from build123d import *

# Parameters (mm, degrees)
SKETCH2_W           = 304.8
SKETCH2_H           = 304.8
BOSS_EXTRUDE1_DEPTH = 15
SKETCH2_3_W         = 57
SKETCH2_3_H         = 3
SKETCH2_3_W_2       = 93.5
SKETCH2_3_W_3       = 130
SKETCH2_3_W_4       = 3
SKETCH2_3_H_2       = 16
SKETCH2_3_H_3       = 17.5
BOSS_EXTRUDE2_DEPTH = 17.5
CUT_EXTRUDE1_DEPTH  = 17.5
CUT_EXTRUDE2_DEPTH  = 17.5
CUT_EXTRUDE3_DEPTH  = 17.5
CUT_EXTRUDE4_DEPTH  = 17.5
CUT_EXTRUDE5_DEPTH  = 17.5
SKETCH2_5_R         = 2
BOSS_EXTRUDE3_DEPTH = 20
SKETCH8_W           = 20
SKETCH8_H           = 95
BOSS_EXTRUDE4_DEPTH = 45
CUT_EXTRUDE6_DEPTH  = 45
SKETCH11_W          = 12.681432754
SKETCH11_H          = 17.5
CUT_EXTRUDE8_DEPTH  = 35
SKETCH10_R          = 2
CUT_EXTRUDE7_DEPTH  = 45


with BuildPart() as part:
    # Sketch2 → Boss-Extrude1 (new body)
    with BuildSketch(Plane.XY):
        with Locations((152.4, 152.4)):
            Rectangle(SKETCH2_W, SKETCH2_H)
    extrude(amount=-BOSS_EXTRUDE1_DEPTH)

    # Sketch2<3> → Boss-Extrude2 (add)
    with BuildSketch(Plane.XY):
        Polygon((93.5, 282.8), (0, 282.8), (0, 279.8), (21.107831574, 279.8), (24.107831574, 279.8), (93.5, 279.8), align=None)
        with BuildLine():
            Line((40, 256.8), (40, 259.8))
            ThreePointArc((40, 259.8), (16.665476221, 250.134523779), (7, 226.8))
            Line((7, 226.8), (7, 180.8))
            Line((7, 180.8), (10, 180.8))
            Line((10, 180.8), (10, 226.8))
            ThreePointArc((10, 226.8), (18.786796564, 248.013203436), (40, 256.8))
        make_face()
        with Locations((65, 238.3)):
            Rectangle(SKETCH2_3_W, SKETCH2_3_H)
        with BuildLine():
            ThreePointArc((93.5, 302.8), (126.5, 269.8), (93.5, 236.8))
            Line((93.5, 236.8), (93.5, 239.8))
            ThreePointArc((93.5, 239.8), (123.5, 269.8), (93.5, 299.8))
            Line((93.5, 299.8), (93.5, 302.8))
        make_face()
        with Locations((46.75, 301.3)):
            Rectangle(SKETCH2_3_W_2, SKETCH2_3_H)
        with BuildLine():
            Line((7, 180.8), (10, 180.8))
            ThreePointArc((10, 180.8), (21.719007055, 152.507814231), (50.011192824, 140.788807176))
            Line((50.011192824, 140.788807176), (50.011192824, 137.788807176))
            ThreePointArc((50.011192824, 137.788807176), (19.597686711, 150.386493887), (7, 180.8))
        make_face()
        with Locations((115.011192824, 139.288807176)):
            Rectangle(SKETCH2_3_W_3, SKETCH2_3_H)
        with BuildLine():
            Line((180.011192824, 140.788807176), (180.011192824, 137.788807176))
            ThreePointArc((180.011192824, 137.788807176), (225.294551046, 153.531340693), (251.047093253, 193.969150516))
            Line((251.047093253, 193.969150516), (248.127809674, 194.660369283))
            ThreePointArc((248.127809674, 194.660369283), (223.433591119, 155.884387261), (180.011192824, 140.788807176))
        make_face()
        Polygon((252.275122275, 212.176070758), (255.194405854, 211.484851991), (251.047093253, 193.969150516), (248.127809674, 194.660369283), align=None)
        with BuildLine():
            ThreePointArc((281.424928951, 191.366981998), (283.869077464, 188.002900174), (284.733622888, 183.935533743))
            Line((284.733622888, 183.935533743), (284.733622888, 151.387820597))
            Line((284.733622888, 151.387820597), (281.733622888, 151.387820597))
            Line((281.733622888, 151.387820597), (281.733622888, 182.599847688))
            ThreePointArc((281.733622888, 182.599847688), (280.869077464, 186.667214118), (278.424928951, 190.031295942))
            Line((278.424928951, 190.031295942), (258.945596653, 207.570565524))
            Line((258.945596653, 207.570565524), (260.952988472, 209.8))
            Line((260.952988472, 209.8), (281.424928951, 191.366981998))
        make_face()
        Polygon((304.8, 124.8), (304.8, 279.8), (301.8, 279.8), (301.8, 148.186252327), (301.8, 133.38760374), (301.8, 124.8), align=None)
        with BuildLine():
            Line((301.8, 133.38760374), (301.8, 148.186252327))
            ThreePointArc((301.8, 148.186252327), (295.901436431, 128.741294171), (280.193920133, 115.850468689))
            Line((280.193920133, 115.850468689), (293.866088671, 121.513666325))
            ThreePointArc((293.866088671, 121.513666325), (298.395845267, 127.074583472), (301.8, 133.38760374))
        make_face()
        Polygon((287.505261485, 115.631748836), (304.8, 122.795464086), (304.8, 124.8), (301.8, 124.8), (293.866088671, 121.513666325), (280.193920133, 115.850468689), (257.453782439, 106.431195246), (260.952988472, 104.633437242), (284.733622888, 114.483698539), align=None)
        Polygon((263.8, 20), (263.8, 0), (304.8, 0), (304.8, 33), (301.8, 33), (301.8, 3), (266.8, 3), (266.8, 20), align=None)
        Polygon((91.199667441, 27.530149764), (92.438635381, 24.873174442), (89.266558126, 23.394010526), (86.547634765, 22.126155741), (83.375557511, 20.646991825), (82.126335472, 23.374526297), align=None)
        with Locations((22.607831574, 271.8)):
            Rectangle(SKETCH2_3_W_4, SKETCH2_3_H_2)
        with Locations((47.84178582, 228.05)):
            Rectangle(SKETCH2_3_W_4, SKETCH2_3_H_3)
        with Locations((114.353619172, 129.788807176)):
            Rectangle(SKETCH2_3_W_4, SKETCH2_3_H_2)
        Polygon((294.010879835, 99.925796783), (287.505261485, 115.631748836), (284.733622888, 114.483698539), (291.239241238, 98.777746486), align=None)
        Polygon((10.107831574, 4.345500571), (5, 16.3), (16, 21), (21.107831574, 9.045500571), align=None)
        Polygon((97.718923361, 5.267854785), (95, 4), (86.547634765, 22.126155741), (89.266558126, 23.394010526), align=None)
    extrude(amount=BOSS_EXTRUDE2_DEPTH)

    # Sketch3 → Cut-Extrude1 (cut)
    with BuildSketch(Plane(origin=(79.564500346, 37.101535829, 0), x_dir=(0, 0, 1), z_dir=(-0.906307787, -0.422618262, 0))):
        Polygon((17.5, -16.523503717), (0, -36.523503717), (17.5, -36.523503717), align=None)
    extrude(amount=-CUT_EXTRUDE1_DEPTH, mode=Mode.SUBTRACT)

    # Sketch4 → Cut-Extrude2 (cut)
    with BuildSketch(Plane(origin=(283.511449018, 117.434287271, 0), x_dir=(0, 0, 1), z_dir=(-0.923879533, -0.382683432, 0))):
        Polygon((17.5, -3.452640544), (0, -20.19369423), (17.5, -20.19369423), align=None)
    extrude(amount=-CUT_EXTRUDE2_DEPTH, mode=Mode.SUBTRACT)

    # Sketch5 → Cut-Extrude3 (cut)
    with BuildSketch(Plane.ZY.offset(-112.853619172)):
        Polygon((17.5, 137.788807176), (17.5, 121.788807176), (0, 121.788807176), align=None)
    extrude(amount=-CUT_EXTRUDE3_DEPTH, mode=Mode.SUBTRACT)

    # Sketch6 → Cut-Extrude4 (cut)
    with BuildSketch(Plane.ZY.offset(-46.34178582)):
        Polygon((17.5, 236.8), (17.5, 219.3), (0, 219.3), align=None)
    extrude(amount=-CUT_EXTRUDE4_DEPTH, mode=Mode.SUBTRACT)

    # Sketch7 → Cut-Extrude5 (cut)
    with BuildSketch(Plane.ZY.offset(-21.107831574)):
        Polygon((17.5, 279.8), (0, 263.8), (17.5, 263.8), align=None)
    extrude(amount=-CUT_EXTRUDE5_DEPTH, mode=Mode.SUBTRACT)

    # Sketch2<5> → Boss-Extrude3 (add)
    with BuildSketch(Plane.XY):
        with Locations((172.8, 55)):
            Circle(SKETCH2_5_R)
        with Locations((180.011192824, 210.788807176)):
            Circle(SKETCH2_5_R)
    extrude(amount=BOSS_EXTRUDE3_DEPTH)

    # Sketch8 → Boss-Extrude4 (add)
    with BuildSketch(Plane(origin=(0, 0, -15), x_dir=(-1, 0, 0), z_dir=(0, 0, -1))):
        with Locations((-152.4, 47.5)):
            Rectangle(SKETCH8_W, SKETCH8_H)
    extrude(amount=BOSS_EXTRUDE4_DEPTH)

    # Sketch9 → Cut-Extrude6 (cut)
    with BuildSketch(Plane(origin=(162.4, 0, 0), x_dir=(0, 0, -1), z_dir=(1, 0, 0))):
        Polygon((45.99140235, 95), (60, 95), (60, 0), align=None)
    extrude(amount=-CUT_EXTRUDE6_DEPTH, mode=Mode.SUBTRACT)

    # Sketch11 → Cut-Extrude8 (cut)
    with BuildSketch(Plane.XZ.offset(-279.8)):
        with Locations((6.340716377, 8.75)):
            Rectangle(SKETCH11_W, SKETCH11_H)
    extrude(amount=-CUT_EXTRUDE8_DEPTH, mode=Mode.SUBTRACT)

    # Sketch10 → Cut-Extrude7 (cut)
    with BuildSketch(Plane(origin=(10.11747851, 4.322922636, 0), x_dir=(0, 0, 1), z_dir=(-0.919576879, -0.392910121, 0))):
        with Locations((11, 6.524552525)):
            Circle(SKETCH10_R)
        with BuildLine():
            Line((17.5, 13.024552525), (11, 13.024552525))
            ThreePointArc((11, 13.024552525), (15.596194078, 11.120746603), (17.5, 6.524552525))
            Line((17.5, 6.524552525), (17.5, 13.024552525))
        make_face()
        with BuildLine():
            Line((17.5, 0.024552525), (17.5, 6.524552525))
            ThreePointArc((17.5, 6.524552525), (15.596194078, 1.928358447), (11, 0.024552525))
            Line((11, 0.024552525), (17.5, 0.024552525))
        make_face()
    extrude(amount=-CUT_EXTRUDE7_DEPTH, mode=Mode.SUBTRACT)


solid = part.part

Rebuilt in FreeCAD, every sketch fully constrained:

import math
import FreeCAD as App
import Part
import Sketcher
from FreeCAD import Vector
Q = App.Units.Quantity

doc = App.newDocument("Part")
body = doc.addObject("PartDesign::Body", "Body")

# Sketch on XY plane
sketch1 = body.newObject("Sketcher::SketchObject", "Sketch")
sketch1.AttachmentSupport = (doc.getObject("XY_Plane"), [""])
sketch1.MapMode = "FlatFace"
sketch1.addGeometry(Part.LineSegment(Vector(0, 305, 0), Vector(0, 0, 0)), False)
sketch1.addGeometry(Part.LineSegment(Vector(0, 0, 0), Vector(305, 0, 0)), False)
sketch1.addGeometry(Part.LineSegment(Vector(305, 0, 0), Vector(305, 305, 0)), False)
sketch1.addGeometry(Part.LineSegment(Vector(305, 305, 0), Vector(0, 305, 0)), False)
sketch1.addConstraint(Sketcher.Constraint("Coincident", 0, 2, 1, 1))
sketch1.addConstraint(Sketcher.Constraint("Coincident", 1, 2, 2, 1))
sketch1.addConstraint(Sketcher.Constraint("Coincident", 2, 2, 3, 1))
sketch1.addConstraint(Sketcher.Constraint("Coincident", 3, 2, 0, 1))
sketch1.addConstraint(Sketcher.Constraint("Vertical", 0))
sketch1.addConstraint(Sketcher.Constraint("Horizontal", 1))
sketch1.addConstraint(Sketcher.Constraint("Vertical", 2))
sketch1.addConstraint(Sketcher.Constraint("Horizontal", 3))
sketch1.addConstraint(Sketcher.Constraint("Coincident", 0, 2, -1, 1))
sketch1.addConstraint(Sketcher.Constraint("Equal", 3, 0))
sketch1.addConstraint(Sketcher.Constraint("DistanceX", 1, 1, 1, 2, 304.8))
pad1 = body.newObject("PartDesign::Pad", "Pad")
pad1.Profile = sketch1
pad1.Length = 15
pad1.Reversed = True

# Sketch on XY plane
sketch2 = body.newObject("Sketcher::SketchObject", "Sketch001")
sketch2.AttachmentSupport = (doc.getObject("XY_Plane"), [""])
sketch2.MapMode = "FlatFace"
sketch2.addGeometry(Part.LineSegment(Vector(93.5, 282.8, 0), Vector(0, 282.8, 0)), False)
sketch2.addGeometry(Part.LineSegment(Vector(0, 282.8, 0), Vector(0, 279.8, 0)), False)
sketch2.addGeometry(Part.LineSegment(Vector(0, 279.8, 0), Vector(21.1, 279.8, 0)), False)
sketch2.addGeometry(Part.LineSegment(Vector(21.1, 279.8, 0), Vector(21.1, 263.8, 0)), False)
sketch2.addGeometry(Part.LineSegment(Vector(21.1, 263.8, 0), Vector(24.1, 263.8, 0)), False)
sketch2.addGeometry(Part.LineSegment(Vector(24.1, 263.8, 0), Vector(24.1, 279.8, 0)), False)
sketch2.addGeometry(Part.LineSegment(Vector(24.1, 279.8, 0), Vector(93.5, 279.8, 0)), False)
sketch2.addGeometry(Part.LineSegment(Vector(93.5, 279.8, 0), Vector(93.5, 282.8, 0)), False)
sketch2.addGeometry(Part.LineSegment(Vector(40, 256.8, 0), Vector(40, 259.8, 0)), False)
sketch2.addGeometry(Part.ArcOfCircle(Part.Circle(Vector(40, 226.8, 0), Vector(0, 0, 1), 33), math.radians(90), math.radians(180)), False)
sketch2.addGeometry(Part.LineSegment(Vector(7, 226.8, 0), Vector(7, 180.8, 0)), False)
sketch2.addGeometry(Part.ArcOfCircle(Part.Circle(Vector(50, 180.8, 0), Vector(0, 0, 1), 43), math.radians(180), math.radians(270)), False)
sketch2.addGeometry(Part.LineSegment(Vector(50, 137.8, 0), Vector(112.9, 137.8, 0)), False)
sketch2.addGeometry(Part.LineSegment(Vector(112.9, 137.8, 0), Vector(112.9, 121.8, 0)), False)
sketch2.addGeometry(Part.LineSegment(Vector(112.9, 121.8, 0), Vector(115.9, 121.8, 0)), False)
sketch2.addGeometry(Part.LineSegment(Vector(115.9, 121.8, 0), Vector(115.9, 137.8, 0)), False)
sketch2.addGeometry(Part.LineSegment(Vector(115.9, 137.8, 0), Vector(180, 137.8, 0)), False)
sketch2.addGeometry(Part.ArcOfCircle(Part.Circle(Vector(180, 210.8, 0), Vector(0, 0, 1), 73), math.radians(-90), math.radians(-13)), False)
sketch2.addGeometry(Part.LineSegment(Vector(251, 194, 0), Vector(255.2, 211.5, 0)), False)
sketch2.addGeometry(Part.LineSegment(Vector(255.2, 211.5, 0), Vector(252.3, 212.2, 0)), False)
sketch2.addGeometry(Part.LineSegment(Vector(252.3, 212.2, 0), Vector(248.1, 194.7, 0)), False)
sketch2.addGeometry(Part.ArcOfCircle(Part.Circle(Vector(180, 210.8, 0), Vector(0, 0, 1), 70), math.radians(-90), math.radians(-13)), False)
sketch2.addGeometry(Part.LineSegment(Vector(180, 140.8, 0), Vector(50, 140.8, 0)), False)
sketch2.addGeometry(Part.ArcOfCircle(Part.Circle(Vector(50, 180.8, 0), Vector(0, 0, 1), 40), math.radians(-180), math.radians(-90)), False)
sketch2.addGeometry(Part.LineSegment(Vector(10, 180.8, 0), Vector(10, 226.8, 0)), False)
sketch2.addGeometry(Part.ArcOfCircle(Part.Circle(Vector(40, 226.8, 0), Vector(0, 0, 1), 30), math.radians(90), math.radians(180)), False)
sketch2.addGeometry(Part.LineSegment(Vector(36.5, 239.8, 0), Vector(36.5, 236.8, 0)), False)
sketch2.addGeometry(Part.LineSegment(Vector(36.5, 236.8, 0), Vector(46.3, 236.8, 0)), False)
sketch2.addGeometry(Part.LineSegment(Vector(46.3, 236.8, 0), Vector(46.3, 219.3, 0)), False)
sketch2.addGeometry(Part.LineSegment(Vector(46.3, 219.3, 0), Vector(49.3, 219.3, 0)), False)
sketch2.addGeometry(Part.LineSegment(Vector(49.3, 219.3, 0), Vector(49.3, 236.8, 0)), False)
sketch2.addGeometry(Part.LineSegment(Vector(49.3, 236.8, 0), Vector(93.5, 236.8, 0)), False)
sketch2.addGeometry(Part.ArcOfCircle(Part.Circle(Vector(93.5, 269.8, 0), Vector(0, 0, 1), 33), math.radians(-90), math.radians(90)), False)
sketch2.addGeometry(Part.LineSegment(Vector(93.5, 302.8, 0), Vector(0, 302.8, 0)), False)
sketch2.addGeometry(Part.LineSegment(Vector(0, 302.8, 0), Vector(0, 299.8, 0)), False)
sketch2.addGeometry(Part.LineSegment(Vector(0, 299.8, 0), Vector(93.5, 299.8, 0)), False)
sketch2.addGeometry(Part.ArcOfCircle(Part.Circle(Vector(93.5, 269.8, 0), Vector(0, 0, 1), 30), math.radians(-90), math.radians(90)), False)
sketch2.addGeometry(Part.LineSegment(Vector(93.5, 239.8, 0), Vector(36.5, 239.8, 0)), False)
sketch2.addGeometry(Part.ArcOfCircle(Part.Circle(Vector(274.7, 183.9, 0), Vector(0, 0, 1), 10), math.radians(0), math.radians(48)), False)
sketch2.addGeometry(Part.LineSegment(Vector(281.4, 191.4, 0), Vector(261, 209.8, 0)), False)
sketch2.addGeometry(Part.LineSegment(Vector(261, 209.8, 0), Vector(258.9, 207.6, 0)), False)
sketch2.addGeometry(Part.LineSegment(Vector(258.9, 207.6, 0), Vector(278.4, 190, 0)), False)
sketch2.addGeometry(Part.ArcOfCircle(Part.Circle(Vector(271.7, 182.6, 0), Vector(0, 0, 1), 10), math.radians(0), math.radians(48)), False)
sketch2.addGeometry(Part.LineSegment(Vector(281.7, 182.6, 0), Vector(281.7, 151.4, 0)), False)
sketch2.addGeometry(Part.LineSegment(Vector(281.7, 151.4, 0), Vector(284.7, 151.4, 0)), False)
sketch2.addGeometry(Part.LineSegment(Vector(284.7, 151.4, 0), Vector(284.7, 183.9, 0)), False)
sketch2.addGeometry(Part.LineSegment(Vector(304.8, 279.8, 0), Vector(301.8, 279.8, 0)), False)
sketch2.addGeometry(Part.LineSegment(Vector(301.8, 279.8, 0), Vector(301.8, 148.2, 0)), False)
sketch2.addGeometry(Part.ArcOfCircle(Part.Circle(Vector(266.8, 148.2, 0), Vector(0, 0, 1), 35), math.radians(-68), math.radians(0)), False)
sketch2.addGeometry(Part.LineSegment(Vector(280.2, 115.9, 0), Vector(257.5, 106.4, 0)), False)
sketch2.addGeometry(Part.LineSegment(Vector(257.5, 106.4, 0), Vector(261, 104.6, 0)), False)
sketch2.addGeometry(Part.LineSegment(Vector(261, 104.6, 0), Vector(284.7, 114.5, 0)), False)
sketch2.addGeometry(Part.LineSegment(Vector(284.7, 114.5, 0), Vector(291.2, 98.8, 0)), False)
sketch2.addGeometry(Part.LineSegment(Vector(291.2, 98.8, 0), Vector(294, 99.9, 0)), False)
sketch2.addGeometry(Part.LineSegment(Vector(294, 99.9, 0), Vector(287.5, 115.6, 0)), False)
sketch2.addGeometry(Part.LineSegment(Vector(287.5, 115.6, 0), Vector(304.8, 122.8, 0)), False)
sketch2.addGeometry(Part.LineSegment(Vector(304.8, 122.8, 0), Vector(304.8, 279.8, 0)), False)
sketch2.addGeometry(Part.ArcOfCircle(Part.Circle(Vector(266.8, 148.2, 0), Vector(0, 0, 1), 38), math.radians(-45), math.radians(-23)), False)
sketch2.addGeometry(Part.LineSegment(Vector(301.8, 133.4, 0), Vector(301.8, 124.8, 0)), False)
sketch2.addGeometry(Part.LineSegment(Vector(301.8, 124.8, 0), Vector(293.9, 121.5, 0)), False)
sketch2.addGeometry(Part.LineSegment(Vector(263.8, 20, 0), Vector(263.8, 0, 0)), False)
sketch2.addGeometry(Part.LineSegment(Vector(263.8, 0, 0), Vector(304.8, 0, 0)), False)
sketch2.addGeometry(Part.LineSegment(Vector(304.8, 0, 0), Vector(304.8, 33, 0)), False)
sketch2.addGeometry(Part.LineSegment(Vector(304.8, 33, 0), Vector(301.8, 33, 0)), False)
sketch2.addGeometry(Part.LineSegment(Vector(301.8, 33, 0), Vector(301.8, 3, 0)), False)
sketch2.addGeometry(Part.LineSegment(Vector(301.8, 3, 0), Vector(266.8, 3, 0)), False)
sketch2.addGeometry(Part.LineSegment(Vector(266.8, 3, 0), Vector(266.8, 20, 0)), False)
sketch2.addGeometry(Part.LineSegment(Vector(266.8, 20, 0), Vector(263.8, 20, 0)), False)
sketch2.addGeometry(Part.LineSegment(Vector(92.4, 24.9, 0), Vector(91.2, 27.5, 0)), False)
sketch2.addGeometry(Part.LineSegment(Vector(91.2, 27.5, 0), Vector(82.1, 23.4, 0)), False)
sketch2.addGeometry(Part.LineSegment(Vector(82.1, 23.4, 0), Vector(83.4, 20.6, 0)), False)
sketch2.addGeometry(Part.LineSegment(Vector(83.4, 20.6, 0), Vector(86.5, 22.1, 0)), False)
sketch2.addGeometry(Part.LineSegment(Vector(86.5, 22.1, 0), Vector(95, 4, 0)), False)
sketch2.addGeometry(Part.LineSegment(Vector(95, 4, 0), Vector(97.7, 5.3, 0)), False)
sketch2.addGeometry(Part.LineSegment(Vector(97.7, 5.3, 0), Vector(89.3, 23.4, 0)), False)
sketch2.addGeometry(Part.LineSegment(Vector(89.3, 23.4, 0), Vector(92.4, 24.9, 0)), False)
sketch2.addGeometry(Part.LineSegment(Vector(5, 16.3, 0), Vector(10.1, 4.3, 0)), False)
sketch2.addGeometry(Part.LineSegment(Vector(10.1, 4.3, 0), Vector(21.1, 9, 0)), False)
sketch2.addGeometry(Part.LineSegment(Vector(21.1, 9, 0), Vector(16, 21, 0)), False)
sketch2.addGeometry(Part.LineSegment(Vector(16, 21, 0), Vector(5, 16.3, 0)), False)
sketch2.addConstraint(Sketcher.Constraint("Coincident", 0, 2, 1, 1))
sketch2.addConstraint(Sketcher.Constraint("Coincident", 1, 2, 2, 1))
sketch2.addConstraint(Sketcher.Constraint("Coincident", 2, 2, 3, 1))
sketch2.addConstraint(Sketcher.Constraint("Coincident", 3, 2, 4, 1))
sketch2.addConstraint(Sketcher.Constraint("Coincident", 4, 2, 5, 1))
sketch2.addConstraint(Sketcher.Constraint("Coincident", 5, 2, 6, 1))
sketch2.addConstraint(Sketcher.Constraint("Coincident", 6, 2, 7, 1))
sketch2.addConstraint(Sketcher.Constraint("Coincident", 7, 2, 0, 1))
sketch2.addConstraint(Sketcher.Constraint("Coincident", 8, 2, 9, 1))
sketch2.addConstraint(Sketcher.Constraint("Tangent", 9, 2, 10, 1))
sketch2.addConstraint(Sketcher.Constraint("Tangent", 10, 2, 11, 1))
sketch2.addConstraint(Sketcher.Constraint("Tangent", 11, 2, 12, 1))
sketch2.addConstraint(Sketcher.Constraint("Coincident", 12, 2, 13, 1))
sketch2.addConstraint(Sketcher.Constraint("Coincident", 13, 2, 14, 1))
sketch2.addConstraint(Sketcher.Constraint("Coincident", 14, 2, 15, 1))
sketch2.addConstraint(Sketcher.Constraint("Coincident", 15, 2, 16, 1))
sketch2.addConstraint(Sketcher.Constraint("Tangent", 16, 2, 17, 1))
sketch2.addConstraint(Sketcher.Constraint("Tangent", 17, 2, 18, 1))
sketch2.addConstraint(Sketcher.Constraint("Coincident", 18, 2, 19, 1))
sketch2.addConstraint(Sketcher.Constraint("Coincident", 19, 2, 20, 1))
sketch2.addConstraint(Sketcher.Constraint("Tangent", 20, 2, 21, 2))
sketch2.addConstraint(Sketcher.Constraint("Tangent", 21, 1, 22, 1))
sketch2.addConstraint(Sketcher.Constraint("Tangent", 22, 2, 23, 2))
sketch2.addConstraint(Sketcher.Constraint("Tangent", 23, 1, 24, 1))
sketch2.addConstraint(Sketcher.Constraint("Tangent", 24, 2, 25, 2))
sketch2.addConstraint(Sketcher.Constraint("Coincident", 25, 1, 8, 1))
sketch2.addConstraint(Sketcher.Constraint("Coincident", 26, 2, 27, 1))
sketch2.addConstraint(Sketcher.Constraint("Coincident", 27, 2, 28, 1))
sketch2.addConstraint(Sketcher.Constraint("Coincident", 28, 2, 29, 1))
sketch2.addConstraint(Sketcher.Constraint("Coincident", 29, 2, 30, 1))
sketch2.addConstraint(Sketcher.Constraint("Coincident", 30, 2, 31, 1))
sketch2.addConstraint(Sketcher.Constraint("Tangent", 31, 2, 32, 1))
sketch2.addConstraint(Sketcher.Constraint("Tangent", 32, 2, 33, 1))
sketch2.addConstraint(Sketcher.Constraint("Coincident", 33, 2, 34, 1))
sketch2.addConstraint(Sketcher.Constraint("Coincident", 34, 2, 35, 1))
sketch2.addConstraint(Sketcher.Constraint("Tangent", 35, 2, 36, 2))
sketch2.addConstraint(Sketcher.Constraint("Tangent", 36, 1, 37, 1))
sketch2.addConstraint(Sketcher.Constraint("Coincident", 37, 2, 26, 1))
sketch2.addConstraint(Sketcher.Constraint("Tangent", 38, 2, 39, 1))
sketch2.addConstraint(Sketcher.Constraint("Coincident", 39, 2, 40, 1))
sketch2.addConstraint(Sketcher.Constraint("Coincident", 40, 2, 41, 1))
sketch2.addConstraint(Sketcher.Constraint("Tangent", 41, 2, 42, 2))
sketch2.addConstraint(Sketcher.Constraint("Tangent", 42, 1, 43, 1))
sketch2.addConstraint(Sketcher.Constraint("Coincident", 43, 2, 44, 1))
sketch2.addConstraint(Sketcher.Constraint("Coincident", 44, 2, 45, 1))
sketch2.addConstraint(Sketcher.Constraint("Tangent", 45, 2, 38, 1))
sketch2.addConstraint(Sketcher.Constraint("Coincident", 46, 2, 47, 1))
sketch2.addConstraint(Sketcher.Constraint("Tangent", 47, 2, 48, 2))
sketch2.addConstraint(Sketcher.Constraint("Tangent", 48, 1, 49, 1))
sketch2.addConstraint(Sketcher.Constraint("Coincident", 49, 2, 50, 1))
sketch2.addConstraint(Sketcher.Constraint("Coincident", 50, 2, 51, 1))
sketch2.addConstraint(Sketcher.Constraint("Coincident", 51, 2, 52, 1))
sketch2.addConstraint(Sketcher.Constraint("Coincident", 52, 2, 53, 1))
sketch2.addConstraint(Sketcher.Constraint("Coincident", 53, 2, 54, 1))
sketch2.addConstraint(Sketcher.Constraint("Coincident", 54, 2, 55, 1))
sketch2.addConstraint(Sketcher.Constraint("Coincident", 55, 2, 56, 1))
sketch2.addConstraint(Sketcher.Constraint("Coincident", 56, 2, 46, 1))
sketch2.addConstraint(Sketcher.Constraint("Coincident", 57, 2, 58, 1))
sketch2.addConstraint(Sketcher.Constraint("Coincident", 58, 2, 59, 1))
sketch2.addConstraint(Sketcher.Constraint("Coincident", 59, 2, 57, 1))
sketch2.addConstraint(Sketcher.Constraint("Coincident", 60, 2, 61, 1))
sketch2.addConstraint(Sketcher.Constraint("Coincident", 61, 2, 62, 1))
sketch2.addConstraint(Sketcher.Constraint("Coincident", 62, 2, 63, 1))
sketch2.addConstraint(Sketcher.Constraint("Coincident", 63, 2, 64, 1))
sketch2.addConstraint(Sketcher.Constraint("Coincident", 64, 2, 65, 1))
sketch2.addConstraint(Sketcher.Constraint("Coincident", 65, 2, 66, 1))
sketch2.addConstraint(Sketcher.Constraint("Coincident", 66, 2, 67, 1))
sketch2.addConstraint(Sketcher.Constraint("Coincident", 67, 2, 60, 1))
sketch2.addConstraint(Sketcher.Constraint("Coincident", 68, 2, 69, 1))
sketch2.addConstraint(Sketcher.Constraint("Coincident", 69, 2, 70, 1))
sketch2.addConstraint(Sketcher.Constraint("Coincident", 70, 2, 71, 1))
sketch2.addConstraint(Sketcher.Constraint("Coincident", 71, 2, 72, 1))
sketch2.addConstraint(Sketcher.Constraint("Coincident", 72, 2, 73, 1))
sketch2.addConstraint(Sketcher.Constraint("Coincident", 73, 2, 74, 1))
sketch2.addConstraint(Sketcher.Constraint("Coincident", 74, 2, 75, 1))
sketch2.addConstraint(Sketcher.Constraint("Coincident", 75, 2, 68, 1))
sketch2.addConstraint(Sketcher.Constraint("Coincident", 76, 2, 77, 1))
sketch2.addConstraint(Sketcher.Constraint("Coincident", 77, 2, 78, 1))
sketch2.addConstraint(Sketcher.Constraint("Coincident", 78, 2, 79, 1))
sketch2.addConstraint(Sketcher.Constraint("Coincident", 79, 2, 76, 1))
sketch2.addConstraint(Sketcher.Constraint("Horizontal", 0))
sketch2.addConstraint(Sketcher.Constraint("Vertical", 1))
sketch2.addConstraint(Sketcher.Constraint("Horizontal", 2))
sketch2.addConstraint(Sketcher.Constraint("Vertical", 3))
sketch2.addConstraint(Sketcher.Constraint("Horizontal", 4))
sketch2.addConstraint(Sketcher.Constraint("Vertical", 5))
sketch2.addConstraint(Sketcher.Constraint("Horizontal", 6))
sketch2.addConstraint(Sketcher.Constraint("Vertical", 7))
sketch2.addConstraint(Sketcher.Constraint("Vertical", 8))
sketch2.addConstraint(Sketcher.Constraint("Vertical", 10))
sketch2.addConstraint(Sketcher.Constraint("Horizontal", 12))
sketch2.addConstraint(Sketcher.Constraint("Vertical", 13))
sketch2.addConstraint(Sketcher.Constraint("Horizontal", 14))
sketch2.addConstraint(Sketcher.Constraint("Vertical", 15))
sketch2.addConstraint(Sketcher.Constraint("Horizontal", 16))
sketch2.addConstraint(Sketcher.Constraint("Horizontal", 22))
sketch2.addConstraint(Sketcher.Constraint("Vertical", 24))
sketch2.addConstraint(Sketcher.Constraint("Vertical", 26))
sketch2.addConstraint(Sketcher.Constraint("Horizontal", 27))
sketch2.addConstraint(Sketcher.Constraint("Vertical", 28))
sketch2.addConstraint(Sketcher.Constraint("Horizontal", 29))
sketch2.addConstraint(Sketcher.Constraint("Vertical", 30))
sketch2.addConstraint(Sketcher.Constraint("Horizontal", 31))
sketch2.addConstraint(Sketcher.Constraint("Horizontal", 33))
sketch2.addConstraint(Sketcher.Constraint("Vertical", 34))
sketch2.addConstraint(Sketcher.Constraint("Horizontal", 35))
sketch2.addConstraint(Sketcher.Constraint("Horizontal", 37))
sketch2.addConstraint(Sketcher.Constraint("Vertical", 43))
sketch2.addConstraint(Sketcher.Constraint("Horizontal", 44))
sketch2.addConstraint(Sketcher.Constraint("Vertical", 45))
sketch2.addConstraint(Sketcher.Constraint("Horizontal", 46))
sketch2.addConstraint(Sketcher.Constraint("Vertical", 47))
sketch2.addConstraint(Sketcher.Constraint("Vertical", 56))
sketch2.addConstraint(Sketcher.Constraint("Vertical", 58))
sketch2.addConstraint(Sketcher.Constraint("Vertical", 60))
sketch2.addConstraint(Sketcher.Constraint("Horizontal", 61))
sketch2.addConstraint(Sketcher.Constraint("Vertical", 62))
sketch2.addConstraint(Sketcher.Constraint("Horizontal", 63))
sketch2.addConstraint(Sketcher.Constraint("Vertical", 64))
sketch2.addConstraint(Sketcher.Constraint("Horizontal", 65))
sketch2.addConstraint(Sketcher.Constraint("Vertical", 66))
sketch2.addConstraint(Sketcher.Constraint("Horizontal", 67))
sketch2.addConstraint(Sketcher.Constraint("Coincident", 21, 3, 17, 3))
sketch2.addConstraint(Sketcher.Constraint("Coincident", 23, 3, 11, 3))
sketch2.addConstraint(Sketcher.Constraint("Coincident", 25, 3, 9, 3))
sketch2.addConstraint(Sketcher.Constraint("Coincident", 36, 3, 32, 3))
sketch2.addConstraint(Sketcher.Constraint("Coincident", 57, 3, 48, 3))
sketch2.addConstraint(Sketcher.Constraint("Equal", 9, 32))
sketch2.addConstraint(Sketcher.Constraint("Equal", 25, 36))
sketch2.addConstraint(Sketcher.Constraint("Equal", 38, 42))
sketch2.addConstraint(Sketcher.Constraint("PointOnObject", 0, 2, -2))
sketch2.addConstraint(Sketcher.Constraint("PointOnObject", 33, 2, -2))
sketch2.addConstraint(Sketcher.Constraint("PointOnObject", 60, 2, -1))
sketch2.addConstraint(Sketcher.Constraint("Perpendicular", 18, 19))
sketch2.addConstraint(Sketcher.Constraint("Perpendicular", 19, 20))
sketch2.addConstraint(Sketcher.Constraint("Perpendicular", 39, 40))
sketch2.addConstraint(Sketcher.Constraint("Perpendicular", 40, 41))
sketch2.addConstraint(Sketcher.Constraint("Parallel", 49, 51))
sketch2.addConstraint(Sketcher.Constraint("Perpendicular", 51, 52))
sketch2.addConstraint(Sketcher.Constraint("Perpendicular", 52, 53))
sketch2.addConstraint(Sketcher.Constraint("Perpendicular", 53, 54))
sketch2.addConstraint(Sketcher.Constraint("Perpendicular", 54, 55))
sketch2.addConstraint(Sketcher.Constraint("Parallel", 55, 59))
sketch2.addConstraint(Sketcher.Constraint("Perpendicular", 69, 70))
sketch2.addConstraint(Sketcher.Constraint("Perpendicular", 68, 71))
sketch2.addConstraint(Sketcher.Constraint("Perpendicular", 71, 72))
sketch2.addConstraint(Sketcher.Constraint("Perpendicular", 72, 73))
sketch2.addConstraint(Sketcher.Constraint("Perpendicular", 73, 74))
sketch2.addConstraint(Sketcher.Constraint("Perpendicular", 74, 75))
sketch2.addConstraint(Sketcher.Constraint("Perpendicular", 76, 77))
sketch2.addConstraint(Sketcher.Constraint("Perpendicular", 77, 78))
sketch2.addConstraint(Sketcher.Constraint("Perpendicular", 78, 79))
sketch2.addConstraint(Sketcher.Constraint("Horizontal", 2, 2, 5, 2))
sketch2.addConstraint(Sketcher.Constraint("Horizontal", 12, 2, 15, 2))
sketch2.addConstraint(Sketcher.Constraint("Horizontal", 27, 2, 30, 2))
sketch2.addConstraint(Sketcher.Constraint("Horizontal", 6, 2, 46, 2))
sketch2.addConstraint(Sketcher.Constraint("Vertical", 36, 3, 6, 2))
sketch2.addConstraint(Sketcher.Constraint("Vertical", 25, 3, 8, 2))
sketch2.addConstraint(Sketcher.Constraint("Vertical", 39, 2, 50, 2))
sketch2.addConstraint(Sketcher.Constraint("Vertical", 45, 2, 51, 2))
sketch2.addConstraint(Sketcher.Constraint("Vertical", 47, 2, 57, 2))
sketch2.addConstraint(Sketcher.Constraint("Vertical", 56, 2, 61, 2))
sketch2.addConstraint(Sketcher.Constraint("Vertical", 58, 2, 63, 2))
sketch2.addConstraint(Sketcher.Constraint("Vertical", 57, 3, 65, 2))
sketch2.addConstraint(Sketcher.Constraint("Vertical", 3, 2, 77, 2))
sketch2.addConstraint(Sketcher.Constraint("Equal", 4, 14))
sketch2.addConstraint(Sketcher.Constraint("Equal", 14, 29))
sketch2.addConstraint(Sketcher.Constraint("Equal", 29, 44))
sketch2.addConstraint(Sketcher.Constraint("Equal", 44, 46))
sketch2.addConstraint(Sketcher.Constraint("Equal", 63, 67))
sketch2.addConstraint(Sketcher.Constraint("Equal", 67, 1))
sketch2.addConstraint(Sketcher.Constraint("Equal", 7, 8))
sketch2.addConstraint(Sketcher.Constraint("Equal", 5, 13))
sketch2.addConstraint(Sketcher.Constraint("Equal", 19, 40))
sketch2.addConstraint(Sketcher.Constraint("Equal", 40, 53))
sketch2.addConstraint(Sketcher.Constraint("Equal", 52, 54))
sketch2.addConstraint(Sketcher.Constraint("Equal", 53, 70))
sketch2.addConstraint(Sketcher.Constraint("Equal", 70, 73))
sketch2.addConstraint(Sketcher.Constraint("Equal", 72, 74))
sketch2.addConstraint(Sketcher.Constraint("Equal", 71, 75))
sketch2.addConstraint(Sketcher.Constraint("Radius", 9, 33.0))
sketch2.addConstraint(Sketcher.Constraint("Radius", 17, 73.0))
sketch2.addConstraint(Sketcher.Constraint("Radius", 21, 70.0))
sketch2.addConstraint(Sketcher.Constraint("Radius", 38, 10.0))
sketch2.addConstraint(Sketcher.Constraint("Radius", 48, 35.0))
sketch2.addConstraint(Sketcher.Constraint("Radius", 57, 38.0))
sketch2.addConstraint(Sketcher.Constraint("DistanceX", 22, 2, 22, 1, 130.0))
sketch2.addConstraint(Sketcher.Constraint("DistanceX", 37, 2, 37, 1, 57.0))
sketch2.addConstraint(Sketcher.Constraint("DistanceY", 3, 2, 3, 1, 16.0))
sketch2.addConstraint(Sketcher.Constraint("DistanceY", 10, 2, 10, 1, 46.0))
sketch2.addConstraint(Sketcher.Constraint("DistanceY", 60, 2, 60, 1, 20.0))
sketch2.addConstraint(Sketcher.Constraint("DistanceY", 62, 1, 62, 2, 33.0))
sketch2.addConstraint(Sketcher.Constraint("DistanceY", 64, 2, 64, 1, 30.0))
sketch2.addConstraint(Sketcher.Constraint("Angle", 39, Q("138 deg")))
sketch2.addConstraint(Sketcher.Constraint("Angle", 68, Q("115 deg")))
sketch2.addConstraint(Sketcher.Constraint("Distance", 18, 18.0))
sketch2.addConstraint(Sketcher.Constraint("Distance", 52, 17.0))
sketch2.addConstraint(Sketcher.Constraint("Distance", 72, 20.0))
sketch2.addConstraint(Sketcher.Constraint("Distance", 76, 13.0))
sketch2.addConstraint(Sketcher.Constraint("DistanceX", 0, 2, 0, 1, 93.5))
sketch2.addConstraint(Sketcher.Constraint("DistanceY", 28, 2, 28, 1, 17.5))
sketch2.addConstraint(Sketcher.Constraint("DistanceX", -1, 1, 9, 3, 40.0))
sketch2.addConstraint(Sketcher.Constraint("DistanceX", -1, 1, 72, 2, 95.0))
sketch2.addConstraint(Sketcher.Constraint("DistanceY", -1, 1, 72, 2, 4.0))
sketch2.addConstraint(Sketcher.Constraint("DistanceX", -1, 1, 78, 2, 16.0))
sketch2.addConstraint(Sketcher.Constraint("DistanceY", -1, 1, 78, 2, 21.0))
sketch2.addConstraint(Sketcher.Constraint("DistanceX", -1, 1, 79, 2, 5.0))
sketch2.addConstraint(Sketcher.Constraint("Angle", 49, Q("-157.5 deg")))
sketch2.addConstraint(Sketcher.Constraint("Distance", 71, 3.5))
sketch2.addConstraint(Sketcher.Constraint("DistanceY", -1, 1, 9, 3, 226.8))
sketch2.addConstraint(Sketcher.Constraint("DistanceY", -1, 1, 32, 3, 269.8))
sketch2.addConstraint(Sketcher.Constraint("DistanceX", -1, 1, 48, 3, 266.8))
sketch2.addConstraint(Sketcher.Constraint("DistanceY", -1, 1, 0, 2, 282.8))
sketch2.addConstraint(Sketcher.Constraint("DistanceY", -1, 1, 39, 2, 209.8))
sketch2.addConstraint(Sketcher.Constraint("DistanceY", -1, 1, 58, 2, 124.8))
sketch2.addConstraint(Sketcher.Constraint("DistanceY", -1, 1, 79, 2, 16.3))
sketch2.addConstraint(Sketcher.Constraint("Radius", 11, 43.011193))
sketch2.addConstraint(Sketcher.Constraint("DistanceY", -1, 1, 51, 2, 114.483699))
sketch2.addConstraint(Sketcher.Constraint("Distance", 55, 18.71969))
sketch2.addConstraint(Sketcher.Constraint("DistanceX", 12, 1, 12, 2, 62.842426))
sketch2.addConstraint(Sketcher.Constraint("DistanceX", 27, 1, 27, 2, 9.841786))
sketch2.addConstraint(Sketcher.Constraint("DistanceY", 43, 2, 43, 1, 31.212027))
sketch2.addConstraint(Sketcher.Constraint("DistanceY", 47, 2, 47, 1, 131.613748))
sketch2.addConstraint(Sketcher.Constraint("DistanceY", -1, 1, 17, 2, 193.969151))
sketch2.addConstraint(Sketcher.Constraint("DistanceY", -1, 1, 38, 2, 191.366982))
sketch2.addConstraint(Sketcher.Constraint("DistanceY", -1, 1, 68, 2, 27.53015))
sketch2.addConstraint(Sketcher.Constraint("Distance", 49, 24.613748))
pad2 = body.newObject("PartDesign::Pad", "Pad001")
pad2.Profile = sketch2
pad2.Length = 17.5

# Sketch on an angled plane
sketch3 = body.newObject("Sketcher::SketchObject", "Sketch002")
sketch3.Placement = App.Placement(Vector(79.5645, 37.101536, 0), App.Rotation(Vector(0, 0, 1), Vector(-0.422618262, 0.906307787, 0), Vector(-0.906307787, -0.422618262, 0), "ZXY"))
sketch3.addGeometry(Part.LineSegment(Vector(18, -17, 0), Vector(0, -37, 0)), False)
sketch3.addGeometry(Part.LineSegment(Vector(0, -37, 0), Vector(18, -37, 0)), False)
sketch3.addGeometry(Part.LineSegment(Vector(18, -37, 0), Vector(18, -17, 0)), False)
sketch3.addConstraint(Sketcher.Constraint("Coincident", 0, 2, 1, 1))
sketch3.addConstraint(Sketcher.Constraint("Coincident", 1, 2, 2, 1))
sketch3.addConstraint(Sketcher.Constraint("Coincident", 2, 2, 0, 1))
sketch3.addConstraint(Sketcher.Constraint("Horizontal", 1))
sketch3.addConstraint(Sketcher.Constraint("Vertical", 2))
sketch3.addConstraint(Sketcher.Constraint("PointOnObject", 0, 2, -2))
sketch3.addConstraint(Sketcher.Constraint("DistanceY", 2, 1, 2, 2, 20.0))
sketch3.addConstraint(Sketcher.Constraint("DistanceX", 1, 1, 1, 2, 17.5))
sketch3.addConstraint(Sketcher.Constraint("DistanceY", 0, 2, -1, 1, 36.523504))
pocket1 = body.newObject("PartDesign::Pocket", "Pocket")
pocket1.Profile = sketch3
pocket1.Length = 17.5

# Sketch on an angled plane
sketch4 = body.newObject("Sketcher::SketchObject", "Sketch003")
sketch4.Placement = App.Placement(Vector(283.511449, 117.434287, 0), App.Rotation(Vector(0, 0, 1), Vector(-0.382683432, 0.923879533, 0), Vector(-0.923879533, -0.382683432, 0), "ZXY"))
sketch4.addGeometry(Part.LineSegment(Vector(18, -3, 0), Vector(0, -20, 0)), False)
sketch4.addGeometry(Part.LineSegment(Vector(0, -20, 0), Vector(18, -20, 0)), False)
sketch4.addGeometry(Part.LineSegment(Vector(18, -20, 0), Vector(18, -3, 0)), False)
sketch4.addConstraint(Sketcher.Constraint("Coincident", 0, 2, 1, 1))
sketch4.addConstraint(Sketcher.Constraint("Coincident", 1, 2, 2, 1))
sketch4.addConstraint(Sketcher.Constraint("Coincident", 2, 2, 0, 1))
sketch4.addConstraint(Sketcher.Constraint("Horizontal", 1))
sketch4.addConstraint(Sketcher.Constraint("Vertical", 2))
sketch4.addConstraint(Sketcher.Constraint("PointOnObject", 0, 2, -2))
sketch4.addConstraint(Sketcher.Constraint("DistanceX", 1, 1, 1, 2, 17.5))
sketch4.addConstraint(Sketcher.Constraint("DistanceY", 2, 1, 2, 2, 16.741054))
sketch4.addConstraint(Sketcher.Constraint("DistanceY", 2, 2, -1, 1, 3.452641))
pocket2 = body.newObject("PartDesign::Pocket", "Pocket001")
pocket2.Profile = sketch4
pocket2.Length = 17.5

# Sketch on YZ plane
sketch5 = body.newObject("Sketcher::SketchObject", "Sketch004")
sketch5.AttachmentSupport = (doc.getObject("YZ_Plane"), [""])
sketch5.MapMode = "FlatFace"
sketch5.AttachmentOffset = App.Placement(Vector(0, 0, 112.853619), App.Rotation())
sketch5.addGeometry(Part.LineSegment(Vector(122, 18, 0), Vector(138, 18, 0)), False)
sketch5.addGeometry(Part.LineSegment(Vector(138, 18, 0), Vector(122, 0, 0)), False)
sketch5.addGeometry(Part.LineSegment(Vector(122, 0, 0), Vector(122, 18, 0)), False)
sketch5.addConstraint(Sketcher.Constraint("Coincident", 0, 2, 1, 1))
sketch5.addConstraint(Sketcher.Constraint("Coincident", 1, 2, 2, 1))
sketch5.addConstraint(Sketcher.Constraint("Coincident", 2, 2, 0, 1))
sketch5.addConstraint(Sketcher.Constraint("Horizontal", 0))
sketch5.addConstraint(Sketcher.Constraint("Vertical", 2))
sketch5.addConstraint(Sketcher.Constraint("PointOnObject", 1, 2, -1))
sketch5.addConstraint(Sketcher.Constraint("DistanceX", 0, 1, 0, 2, 16.0))
sketch5.addConstraint(Sketcher.Constraint("DistanceY", 2, 1, 2, 2, 17.5))
sketch5.addConstraint(Sketcher.Constraint("DistanceX", -1, 1, 0, 2, 137.788807))
pocket3 = body.newObject("PartDesign::Pocket", "Pocket002")
pocket3.Profile = sketch5
pocket3.Length = 17.5
pocket3.Reversed = True

# Sketch on YZ plane
sketch6 = body.newObject("Sketcher::SketchObject", "Sketch005")
sketch6.AttachmentSupport = (doc.getObject("YZ_Plane"), [""])
sketch6.MapMode = "FlatFace"
sketch6.AttachmentOffset = App.Placement(Vector(0, 0, 46.341786), App.Rotation())
sketch6.addGeometry(Part.LineSegment(Vector(219, 18, 0), Vector(237, 18, 0)), False)
sketch6.addGeometry(Part.LineSegment(Vector(237, 18, 0), Vector(219, 0, 0)), False)
sketch6.addGeometry(Part.LineSegment(Vector(219, 0, 0), Vector(219, 18, 0)), False)
sketch6.addConstraint(Sketcher.Constraint("Coincident", 0, 2, 1, 1))
sketch6.addConstraint(Sketcher.Constraint("Coincident", 1, 2, 2, 1))
sketch6.addConstraint(Sketcher.Constraint("Coincident", 2, 2, 0, 1))
sketch6.addConstraint(Sketcher.Constraint("Horizontal", 0))
sketch6.addConstraint(Sketcher.Constraint("Vertical", 2))
sketch6.addConstraint(Sketcher.Constraint("PointOnObject", 1, 2, -1))
sketch6.addConstraint(Sketcher.Constraint("Equal", 0, 2))
sketch6.addConstraint(Sketcher.Constraint("DistanceX", 0, 1, 0, 2, 17.5))
sketch6.addConstraint(Sketcher.Constraint("DistanceX", -1, 1, 0, 2, 236.8))
pocket4 = body.newObject("PartDesign::Pocket", "Pocket003")
pocket4.Profile = sketch6
pocket4.Length = 17.5
pocket4.Reversed = True

# Sketch on YZ plane
sketch7 = body.newObject("Sketcher::SketchObject", "Sketch006")
sketch7.AttachmentSupport = (doc.getObject("YZ_Plane"), [""])
sketch7.MapMode = "FlatFace"
sketch7.AttachmentOffset = App.Placement(Vector(0, 0, 21.107832), App.Rotation())
sketch7.addGeometry(Part.LineSegment(Vector(280, 18, 0), Vector(264, 0, 0)), False)
sketch7.addGeometry(Part.LineSegment(Vector(264, 0, 0), Vector(264, 18, 0)), False)
sketch7.addGeometry(Part.LineSegment(Vector(264, 18, 0), Vector(280, 18, 0)), False)
sketch7.addConstraint(Sketcher.Constraint("Coincident", 0, 2, 1, 1))
sketch7.addConstraint(Sketcher.Constraint("Coincident", 1, 2, 2, 1))
sketch7.addConstraint(Sketcher.Constraint("Coincident", 2, 2, 0, 1))
sketch7.addConstraint(Sketcher.Constraint("Vertical", 1))
sketch7.addConstraint(Sketcher.Constraint("Horizontal", 2))
sketch7.addConstraint(Sketcher.Constraint("PointOnObject", 0, 2, -1))
sketch7.addConstraint(Sketcher.Constraint("DistanceX", 2, 1, 2, 2, 16.0))
sketch7.addConstraint(Sketcher.Constraint("DistanceY", 1, 1, 1, 2, 17.5))
sketch7.addConstraint(Sketcher.Constraint("DistanceX", -1, 1, 0, 2, 263.8))
pocket5 = body.newObject("PartDesign::Pocket", "Pocket004")
pocket5.Profile = sketch7
pocket5.Length = 17.5
pocket5.Reversed = True

# Sketch on XY plane
sketch8 = body.newObject("Sketcher::SketchObject", "Sketch007")
sketch8.AttachmentSupport = (doc.getObject("XY_Plane"), [""])
sketch8.MapMode = "FlatFace"
sketch8.addGeometry(Part.Circle(Vector(172.8, 55, 0), Vector(0, 0, 1), 2), False)
sketch8.addGeometry(Part.Circle(Vector(180, 210.8, 0), Vector(0, 0, 1), 2), False)
sketch8.addConstraint(Sketcher.Constraint("Equal", 0, 1))
sketch8.addConstraint(Sketcher.Constraint("Diameter", 0, 4.0))
sketch8.addConstraint(Sketcher.Constraint("DistanceY", -1, 1, 0, 3, 55.0))
sketch8.addConstraint(Sketcher.Constraint("DistanceX", -1, 1, 0, 3, 172.8))
sketch8.addConstraint(Sketcher.Constraint("DistanceX", -1, 1, 1, 3, 180.011193))
sketch8.addConstraint(Sketcher.Constraint("DistanceY", -1, 1, 1, 3, 210.788807))
pad3 = body.newObject("PartDesign::Pad", "Pad002")
pad3.Profile = sketch8
pad3.Length = 20

# Sketch on XY plane
sketch9 = body.newObject("Sketcher::SketchObject", "Sketch008")
sketch9.AttachmentSupport = (doc.getObject("XY_Plane"), [""])
sketch9.MapMode = "FlatFace"
sketch9.AttachmentOffset = App.Placement(Vector(0, 0, -15), App.Rotation())
sketch9.addGeometry(Part.LineSegment(Vector(162, 95, 0), Vector(162, 0, 0)), False)
sketch9.addGeometry(Part.LineSegment(Vector(162, 0, 0), Vector(142, 0, 0)), False)
sketch9.addGeometry(Part.LineSegment(Vector(142, 0, 0), Vector(142, 95, 0)), False)
sketch9.addGeometry(Part.LineSegment(Vector(142, 95, 0), Vector(162, 95, 0)), False)
sketch9.addConstraint(Sketcher.Constraint("Coincident", 0, 2, 1, 1))
sketch9.addConstraint(Sketcher.Constraint("Coincident", 1, 2, 2, 1))
sketch9.addConstraint(Sketcher.Constraint("Coincident", 2, 2, 3, 1))
sketch9.addConstraint(Sketcher.Constraint("Coincident", 3, 2, 0, 1))
sketch9.addConstraint(Sketcher.Constraint("Vertical", 0))
sketch9.addConstraint(Sketcher.Constraint("Horizontal", 1))
sketch9.addConstraint(Sketcher.Constraint("Vertical", 2))
sketch9.addConstraint(Sketcher.Constraint("Horizontal", 3))
sketch9.addConstraint(Sketcher.Constraint("PointOnObject", 0, 2, -1))
sketch9.addConstraint(Sketcher.Constraint("DistanceX", 1, 2, 1, 1, 20.0))
sketch9.addConstraint(Sketcher.Constraint("DistanceY", 0, 2, 0, 1, 95.0))
sketch9.addConstraint(Sketcher.Constraint("DistanceX", -1, 1, 0, 2, 162.4))
pad4 = body.newObject("PartDesign::Pad", "Pad003")
pad4.Profile = sketch9
pad4.Length = 45
pad4.Reversed = True

# Sketch on YZ plane
sketch10 = body.newObject("Sketcher::SketchObject", "Sketch009")
sketch10.AttachmentSupport = (doc.getObject("YZ_Plane"), [""])
sketch10.MapMode = "FlatFace"
sketch10.AttachmentOffset = App.Placement(Vector(0, 0, 162.4), App.Rotation())
sketch10.addGeometry(Part.LineSegment(Vector(95, -60, 0), Vector(95, -46, 0)), False)
sketch10.addGeometry(Part.LineSegment(Vector(95, -46, 0), Vector(0, -60, 0)), False)
sketch10.addGeometry(Part.LineSegment(Vector(0, -60, 0), Vector(95, -60, 0)), False)
sketch10.addConstraint(Sketcher.Constraint("Coincident", 0, 2, 1, 1))
sketch10.addConstraint(Sketcher.Constraint("Coincident", 1, 2, 2, 1))
sketch10.addConstraint(Sketcher.Constraint("Coincident", 2, 2, 0, 1))
sketch10.addConstraint(Sketcher.Constraint("Vertical", 0))
sketch10.addConstraint(Sketcher.Constraint("Horizontal", 2))
sketch10.addConstraint(Sketcher.Constraint("PointOnObject", 1, 2, -2))
sketch10.addConstraint(Sketcher.Constraint("DistanceX", 2, 1, 2, 2, 95.0))
sketch10.addConstraint(Sketcher.Constraint("DistanceY", 1, 2, -1, 1, 60.0))
sketch10.addConstraint(Sketcher.Constraint("Distance", 1, 96.027292))
pocket6 = body.newObject("PartDesign::Pocket", "Pocket005")
pocket6.Profile = sketch10
pocket6.Length = 45

# Sketch on XZ plane
sketch11 = body.newObject("Sketcher::SketchObject", "Sketch010")
sketch11.AttachmentSupport = (doc.getObject("XZ_Plane"), [""])
sketch11.MapMode = "FlatFace"
sketch11.AttachmentOffset = App.Placement(Vector(0, 0, -279.8), App.Rotation())
sketch11.addGeometry(Part.LineSegment(Vector(0, 18, 0), Vector(0, 0, 0)), False)
sketch11.addGeometry(Part.LineSegment(Vector(0, 0, 0), Vector(13, 0, 0)), False)
sketch11.addGeometry(Part.LineSegment(Vector(13, 0, 0), Vector(13, 18, 0)), False)
sketch11.addGeometry(Part.LineSegment(Vector(13, 18, 0), Vector(0, 18, 0)), False)
sketch11.addConstraint(Sketcher.Constraint("Coincident", 0, 2, 1, 1))
sketch11.addConstraint(Sketcher.Constraint("Coincident", 1, 2, 2, 1))
sketch11.addConstraint(Sketcher.Constraint("Coincident", 2, 2, 3, 1))
sketch11.addConstraint(Sketcher.Constraint("Coincident", 3, 2, 0, 1))
sketch11.addConstraint(Sketcher.Constraint("Vertical", 0))
sketch11.addConstraint(Sketcher.Constraint("Horizontal", 1))
sketch11.addConstraint(Sketcher.Constraint("Vertical", 2))
sketch11.addConstraint(Sketcher.Constraint("Horizontal", 3))
sketch11.addConstraint(Sketcher.Constraint("Coincident", 0, 2, -1, 1))
sketch11.addConstraint(Sketcher.Constraint("DistanceY", 0, 2, 0, 1, 17.5))
sketch11.addConstraint(Sketcher.Constraint("DistanceX", 1, 1, 1, 2, 12.681433))
pocket7 = body.newObject("PartDesign::Pocket", "Pocket006")
pocket7.Profile = sketch11
pocket7.Length = 35

# Sketch on an angled plane
sketch12 = body.newObject("Sketcher::SketchObject", "Sketch011")
sketch12.Placement = App.Placement(Vector(10.117479, 4.322923, 0), App.Rotation(Vector(0, 0, 1), Vector(-0.392910121, 0.919576879, 0), Vector(-0.919576879, -0.392910121, 0), "ZXY"))
sketch12.addGeometry(Part.Circle(Vector(11, 6.5, 0), Vector(0, 0, 1), 2), False)
sketch12.addGeometry(Part.LineSegment(Vector(17.5, 13, 0), Vector(11, 13, 0)), False)
sketch12.addGeometry(Part.ArcOfCircle(Part.Circle(Vector(11, 6.5, 0), Vector(0, 0, 1), 6.5), math.radians(0), math.radians(90)), False)
sketch12.addGeometry(Part.LineSegment(Vector(17.5, 6.5, 0), Vector(17.5, 13, 0)), False)
sketch12.addGeometry(Part.LineSegment(Vector(17.5, 0, 0), Vector(17.5, 6.5, 0)), False)
sketch12.addGeometry(Part.ArcOfCircle(Part.Circle(Vector(11, 6.5, 0), Vector(0, 0, 1), 6.5), math.radians(-90), math.radians(0)), False)
sketch12.addGeometry(Part.LineSegment(Vector(11, 0, 0), Vector(17.5, 0, 0)), False)
sketch12.addConstraint(Sketcher.Constraint("Tangent", 1, 2, 2, 2))
sketch12.addConstraint(Sketcher.Constraint("Tangent", 2, 1, 3, 1))
sketch12.addConstraint(Sketcher.Constraint("Coincident", 3, 2, 1, 1))
sketch12.addConstraint(Sketcher.Constraint("Tangent", 4, 2, 5, 2))
sketch12.addConstraint(Sketcher.Constraint("Tangent", 5, 1, 6, 1))
sketch12.addConstraint(Sketcher.Constraint("Coincident", 6, 2, 4, 1))
sketch12.addConstraint(Sketcher.Constraint("Horizontal", 1))
sketch12.addConstraint(Sketcher.Constraint("Vertical", 3))
sketch12.addConstraint(Sketcher.Constraint("Vertical", 4))
sketch12.addConstraint(Sketcher.Constraint("Horizontal", 6))
sketch12.addConstraint(Sketcher.Constraint("Coincident", 2, 3, 0, 3))
sketch12.addConstraint(Sketcher.Constraint("Coincident", 5, 3, 0, 3))
sketch12.addConstraint(Sketcher.Constraint("Equal", 2, 5))
sketch12.addConstraint(Sketcher.Constraint("Diameter", 0, 4.0))
sketch12.addConstraint(Sketcher.Constraint("Radius", 2, 6.5))
sketch12.addConstraint(Sketcher.Constraint("DistanceX", -1, 1, 0, 3, 11.0))
sketch12.addConstraint(Sketcher.Constraint("DistanceY", -1, 1, 0, 3, 6.524553))
pocket8 = body.newObject("PartDesign::Pocket", "Pocket007")
pocket8.Profile = sketch12
pocket8.Length = 45

doc.recompute()
